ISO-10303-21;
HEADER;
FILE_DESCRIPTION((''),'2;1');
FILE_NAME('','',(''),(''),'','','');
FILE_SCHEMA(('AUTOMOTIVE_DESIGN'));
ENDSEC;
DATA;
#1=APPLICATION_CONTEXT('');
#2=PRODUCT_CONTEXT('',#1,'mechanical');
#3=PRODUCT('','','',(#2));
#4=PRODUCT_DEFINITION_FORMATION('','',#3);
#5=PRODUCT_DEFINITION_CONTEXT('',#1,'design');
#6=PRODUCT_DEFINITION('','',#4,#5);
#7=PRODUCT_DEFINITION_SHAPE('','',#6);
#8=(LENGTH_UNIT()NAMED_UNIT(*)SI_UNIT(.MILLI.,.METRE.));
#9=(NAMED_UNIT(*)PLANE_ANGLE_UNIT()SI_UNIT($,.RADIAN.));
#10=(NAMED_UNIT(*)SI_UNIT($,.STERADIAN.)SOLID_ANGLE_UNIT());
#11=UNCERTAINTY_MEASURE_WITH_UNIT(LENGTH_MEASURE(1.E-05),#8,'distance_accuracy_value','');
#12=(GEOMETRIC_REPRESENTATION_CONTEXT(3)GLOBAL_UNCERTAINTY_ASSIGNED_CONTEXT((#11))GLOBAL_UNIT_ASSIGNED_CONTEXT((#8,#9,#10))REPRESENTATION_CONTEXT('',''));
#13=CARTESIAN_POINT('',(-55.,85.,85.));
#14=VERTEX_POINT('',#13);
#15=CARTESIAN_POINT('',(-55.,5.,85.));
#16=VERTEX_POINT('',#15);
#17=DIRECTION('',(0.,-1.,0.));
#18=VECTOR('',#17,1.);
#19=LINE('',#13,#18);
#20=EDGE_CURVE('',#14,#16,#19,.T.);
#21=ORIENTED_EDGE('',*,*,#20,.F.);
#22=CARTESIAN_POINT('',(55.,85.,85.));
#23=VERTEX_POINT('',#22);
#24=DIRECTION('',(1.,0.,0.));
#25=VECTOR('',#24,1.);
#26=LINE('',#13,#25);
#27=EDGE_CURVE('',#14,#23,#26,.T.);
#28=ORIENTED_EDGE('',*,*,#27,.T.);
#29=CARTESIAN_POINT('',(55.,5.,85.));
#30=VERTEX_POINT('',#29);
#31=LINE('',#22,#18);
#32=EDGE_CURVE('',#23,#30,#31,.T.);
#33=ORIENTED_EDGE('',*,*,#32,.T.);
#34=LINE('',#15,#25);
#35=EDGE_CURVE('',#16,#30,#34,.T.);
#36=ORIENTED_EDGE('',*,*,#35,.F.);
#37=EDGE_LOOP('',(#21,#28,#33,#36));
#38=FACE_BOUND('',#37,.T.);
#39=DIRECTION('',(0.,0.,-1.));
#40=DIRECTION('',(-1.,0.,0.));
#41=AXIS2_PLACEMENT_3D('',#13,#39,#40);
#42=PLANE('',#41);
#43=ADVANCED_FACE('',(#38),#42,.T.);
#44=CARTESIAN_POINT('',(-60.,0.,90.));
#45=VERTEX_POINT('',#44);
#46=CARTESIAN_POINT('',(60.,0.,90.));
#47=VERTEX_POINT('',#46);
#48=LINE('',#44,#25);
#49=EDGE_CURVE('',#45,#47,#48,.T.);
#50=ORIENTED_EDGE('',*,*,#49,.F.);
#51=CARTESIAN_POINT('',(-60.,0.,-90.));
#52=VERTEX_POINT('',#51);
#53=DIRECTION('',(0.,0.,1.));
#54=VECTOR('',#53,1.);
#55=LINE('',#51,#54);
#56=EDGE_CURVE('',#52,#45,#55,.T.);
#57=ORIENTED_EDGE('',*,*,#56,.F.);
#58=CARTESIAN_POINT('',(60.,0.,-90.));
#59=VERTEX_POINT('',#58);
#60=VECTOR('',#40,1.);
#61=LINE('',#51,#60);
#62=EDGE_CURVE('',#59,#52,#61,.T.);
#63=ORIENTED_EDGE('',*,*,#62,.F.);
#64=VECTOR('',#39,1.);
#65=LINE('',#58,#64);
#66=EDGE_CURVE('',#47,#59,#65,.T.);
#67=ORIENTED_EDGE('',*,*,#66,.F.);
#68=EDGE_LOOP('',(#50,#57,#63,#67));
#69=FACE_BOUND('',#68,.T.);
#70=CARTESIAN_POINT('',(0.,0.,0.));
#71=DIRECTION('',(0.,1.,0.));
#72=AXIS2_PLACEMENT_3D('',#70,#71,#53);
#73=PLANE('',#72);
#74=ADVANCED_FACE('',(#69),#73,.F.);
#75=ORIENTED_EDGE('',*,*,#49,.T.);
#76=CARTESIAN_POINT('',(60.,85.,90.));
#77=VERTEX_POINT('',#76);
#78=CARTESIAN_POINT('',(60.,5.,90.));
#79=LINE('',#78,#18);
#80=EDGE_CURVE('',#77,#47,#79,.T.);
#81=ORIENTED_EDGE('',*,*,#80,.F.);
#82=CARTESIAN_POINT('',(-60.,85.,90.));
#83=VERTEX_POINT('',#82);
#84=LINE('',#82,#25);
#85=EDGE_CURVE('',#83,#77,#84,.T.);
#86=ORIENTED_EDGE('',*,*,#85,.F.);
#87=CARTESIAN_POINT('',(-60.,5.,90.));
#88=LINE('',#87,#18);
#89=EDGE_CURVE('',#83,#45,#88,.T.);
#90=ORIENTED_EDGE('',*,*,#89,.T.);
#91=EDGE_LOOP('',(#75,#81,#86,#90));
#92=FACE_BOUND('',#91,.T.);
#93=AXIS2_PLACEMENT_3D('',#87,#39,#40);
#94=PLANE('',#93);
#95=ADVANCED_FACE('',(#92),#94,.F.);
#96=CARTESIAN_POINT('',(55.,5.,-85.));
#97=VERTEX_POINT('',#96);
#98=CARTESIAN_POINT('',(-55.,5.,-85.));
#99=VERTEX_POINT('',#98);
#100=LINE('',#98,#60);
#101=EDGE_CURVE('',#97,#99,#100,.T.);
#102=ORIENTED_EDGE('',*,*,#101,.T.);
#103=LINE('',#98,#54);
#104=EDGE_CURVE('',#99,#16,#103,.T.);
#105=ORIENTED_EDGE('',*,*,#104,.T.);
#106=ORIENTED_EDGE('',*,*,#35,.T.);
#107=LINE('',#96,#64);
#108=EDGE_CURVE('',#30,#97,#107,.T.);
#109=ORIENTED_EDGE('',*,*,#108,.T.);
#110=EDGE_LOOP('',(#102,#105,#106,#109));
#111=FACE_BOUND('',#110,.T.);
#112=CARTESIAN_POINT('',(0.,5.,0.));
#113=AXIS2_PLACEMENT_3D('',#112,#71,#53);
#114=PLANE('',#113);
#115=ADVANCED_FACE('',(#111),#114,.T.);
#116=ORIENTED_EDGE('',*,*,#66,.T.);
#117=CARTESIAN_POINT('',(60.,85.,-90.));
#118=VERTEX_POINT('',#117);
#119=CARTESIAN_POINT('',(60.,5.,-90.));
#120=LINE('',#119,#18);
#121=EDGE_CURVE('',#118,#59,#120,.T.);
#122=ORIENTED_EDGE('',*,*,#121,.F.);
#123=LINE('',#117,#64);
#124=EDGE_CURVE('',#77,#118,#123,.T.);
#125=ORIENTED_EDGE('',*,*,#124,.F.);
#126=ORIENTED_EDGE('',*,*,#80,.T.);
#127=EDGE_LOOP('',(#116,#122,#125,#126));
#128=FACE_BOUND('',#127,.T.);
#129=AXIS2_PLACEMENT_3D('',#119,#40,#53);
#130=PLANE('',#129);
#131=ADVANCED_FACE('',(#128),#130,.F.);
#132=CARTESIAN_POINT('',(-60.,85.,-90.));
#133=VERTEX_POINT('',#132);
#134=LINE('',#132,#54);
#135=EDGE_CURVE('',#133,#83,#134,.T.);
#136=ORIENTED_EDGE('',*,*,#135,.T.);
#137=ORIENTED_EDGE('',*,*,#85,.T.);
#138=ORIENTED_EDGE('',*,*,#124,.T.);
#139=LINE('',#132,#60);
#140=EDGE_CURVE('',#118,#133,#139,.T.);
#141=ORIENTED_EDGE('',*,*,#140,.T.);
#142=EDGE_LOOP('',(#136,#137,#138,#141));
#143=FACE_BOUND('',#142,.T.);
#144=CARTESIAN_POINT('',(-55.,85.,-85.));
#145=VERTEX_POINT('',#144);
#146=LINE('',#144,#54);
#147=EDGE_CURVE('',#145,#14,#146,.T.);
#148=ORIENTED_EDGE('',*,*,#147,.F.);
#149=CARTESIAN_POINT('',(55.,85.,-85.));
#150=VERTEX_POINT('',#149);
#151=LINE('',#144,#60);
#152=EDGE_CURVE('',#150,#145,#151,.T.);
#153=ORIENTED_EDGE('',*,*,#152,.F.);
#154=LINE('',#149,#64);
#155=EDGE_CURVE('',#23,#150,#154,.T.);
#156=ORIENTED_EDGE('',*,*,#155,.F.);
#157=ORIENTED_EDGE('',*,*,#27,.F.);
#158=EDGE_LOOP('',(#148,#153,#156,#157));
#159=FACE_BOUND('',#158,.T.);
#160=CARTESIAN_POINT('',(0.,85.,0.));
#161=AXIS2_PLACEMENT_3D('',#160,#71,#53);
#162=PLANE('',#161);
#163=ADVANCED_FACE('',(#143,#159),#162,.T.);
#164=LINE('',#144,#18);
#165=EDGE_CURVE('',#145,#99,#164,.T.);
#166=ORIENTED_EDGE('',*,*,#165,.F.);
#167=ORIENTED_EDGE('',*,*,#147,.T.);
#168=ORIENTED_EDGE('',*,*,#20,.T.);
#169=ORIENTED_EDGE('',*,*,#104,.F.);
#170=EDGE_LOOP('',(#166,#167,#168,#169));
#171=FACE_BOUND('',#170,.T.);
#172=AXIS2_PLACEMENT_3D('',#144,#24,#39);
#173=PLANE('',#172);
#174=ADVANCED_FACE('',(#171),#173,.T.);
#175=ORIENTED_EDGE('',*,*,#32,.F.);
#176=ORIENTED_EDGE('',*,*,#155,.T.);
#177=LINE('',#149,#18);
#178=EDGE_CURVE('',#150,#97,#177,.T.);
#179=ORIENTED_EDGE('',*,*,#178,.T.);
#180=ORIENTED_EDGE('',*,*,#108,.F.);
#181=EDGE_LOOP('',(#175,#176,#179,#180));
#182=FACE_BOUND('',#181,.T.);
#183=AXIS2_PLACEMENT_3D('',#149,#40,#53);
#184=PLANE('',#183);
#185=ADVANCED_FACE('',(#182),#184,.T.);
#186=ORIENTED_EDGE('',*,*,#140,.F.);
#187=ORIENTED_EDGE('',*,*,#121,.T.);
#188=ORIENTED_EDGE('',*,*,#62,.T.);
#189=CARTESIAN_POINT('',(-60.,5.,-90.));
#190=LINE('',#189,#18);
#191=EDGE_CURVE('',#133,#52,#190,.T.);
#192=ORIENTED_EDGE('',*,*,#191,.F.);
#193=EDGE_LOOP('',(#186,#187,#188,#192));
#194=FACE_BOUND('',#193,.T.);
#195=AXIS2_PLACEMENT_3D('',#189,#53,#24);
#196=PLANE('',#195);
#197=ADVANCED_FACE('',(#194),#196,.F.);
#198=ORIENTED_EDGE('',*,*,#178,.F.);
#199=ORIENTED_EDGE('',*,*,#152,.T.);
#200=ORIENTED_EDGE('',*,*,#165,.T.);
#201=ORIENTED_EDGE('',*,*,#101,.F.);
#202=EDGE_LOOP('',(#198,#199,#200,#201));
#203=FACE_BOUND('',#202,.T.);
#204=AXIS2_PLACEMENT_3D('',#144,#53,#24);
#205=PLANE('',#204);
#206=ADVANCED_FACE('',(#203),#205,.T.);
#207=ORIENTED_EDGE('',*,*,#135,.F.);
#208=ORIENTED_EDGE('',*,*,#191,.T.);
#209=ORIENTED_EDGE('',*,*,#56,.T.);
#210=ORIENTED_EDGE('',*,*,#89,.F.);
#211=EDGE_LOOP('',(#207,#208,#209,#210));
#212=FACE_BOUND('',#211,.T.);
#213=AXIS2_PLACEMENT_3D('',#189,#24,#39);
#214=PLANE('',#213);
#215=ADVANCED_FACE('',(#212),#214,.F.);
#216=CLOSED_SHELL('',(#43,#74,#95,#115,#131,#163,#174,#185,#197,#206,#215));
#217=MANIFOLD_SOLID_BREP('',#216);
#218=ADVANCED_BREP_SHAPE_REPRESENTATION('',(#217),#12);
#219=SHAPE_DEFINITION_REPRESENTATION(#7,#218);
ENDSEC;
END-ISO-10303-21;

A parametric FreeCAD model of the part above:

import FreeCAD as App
import Part
import Sketcher
from FreeCAD import Vector
Q = App.Units.Quantity


def add_polygon(sketch, points):
    """Adds a closed chain of lines whose ends are joined by coincident constraints."""
    first, n = sketch.GeometryCount, len(points)
    for a, b in zip(points, points[1:] + points[:1]):
        sketch.addGeometry(Part.LineSegment(App.Vector(*a, 0), App.Vector(*b, 0)), False)
    for i in range(n):
        sketch.addConstraint(Sketcher.Constraint("Coincident", first + i, 2, first + (i + 1) % n, 1))

doc = App.newDocument("Part")
body = doc.addObject("PartDesign::Body", "Body")

# Sketch on XZ plane
sketch1 = doc.addObject("Sketcher::SketchObject", "Sketch")
body.addObject(sketch1)
sketch1.AttachmentSupport = (doc.XZ_Plane, [""])
sketch1.MapMode = "FlatFace"
add_polygon(sketch1, [(-60, -90), (-60, 90), (60, 90), (60, -90)])  # lines 0-3
sketch1.addConstraint([
    Sketcher.Constraint("Vertical", 0),
    Sketcher.Constraint("Horizontal", 1),
    Sketcher.Constraint("Vertical", 2),
    Sketcher.Constraint("Horizontal", 3),
    Sketcher.Constraint("Symmetric", 0, 2, 2, 2, -1, 1),
    Sketcher.Constraint("DistanceX", 1, 1, 1, 2, Q("120 mm")),
    Sketcher.Constraint("DistanceY", 0, 1, 0, 2, Q("180 mm")),
])
pad1 = doc.addObject("PartDesign::Pad", "Pad")
body.addObject(pad1)
pad1.Profile = sketch1
pad1.Length = 5
pad1.Reversed = True

# Sketch on XZ plane
sketch2 = doc.addObject("Sketcher::SketchObject", "Sketch001")
body.addObject(sketch2)
sketch2.AttachmentSupport = (doc.XZ_Plane, [""])
sketch2.MapMode = "FlatFace"
sketch2.AttachmentOffset = App.Placement(Vector(0, 0, -5), App.Rotation())
add_polygon(sketch2, [(-60, -90), (-60, 90), (60, 90), (60, -90)])  # lines 0-3
add_polygon(sketch2, [(55, 85), (-55, 85), (-55, -85), (55, -85)])  # lines 4-7
sketch2.addConstraint([
    Sketcher.Constraint("Vertical", 0),
    Sketcher.Constraint("Horizontal", 1),
    Sketcher.Constraint("Vertical", 2),
    Sketcher.Constraint("Horizontal", 3),
    Sketcher.Constraint("Horizontal", 4),
    Sketcher.Constraint("Vertical", 5),
    Sketcher.Constraint("Horizontal", 6),
    Sketcher.Constraint("Vertical", 7),
    Sketcher.Constraint("Symmetric", 0, 2, 2, 2, -1, 1),
    Sketcher.Constraint("Symmetric", 4, 2, 6, 2, -1, 1),
    Sketcher.Constraint("DistanceX", 1, 1, 1, 2, Q("120 mm")),
    Sketcher.Constraint("DistanceX", 4, 2, 4, 1, Q("110 mm")),
    Sketcher.Constraint("DistanceY", 0, 1, 0, 2, Q("180 mm")),
    Sketcher.Constraint("DistanceY", 5, 2, 5, 1, Q("170 mm")),
])
pad2 = doc.addObject("PartDesign::Pad", "Pad001")
body.addObject(pad2)
pad2.Profile = sketch2
pad2.Length = 80
pad2.Reversed = True

doc.recompute()
